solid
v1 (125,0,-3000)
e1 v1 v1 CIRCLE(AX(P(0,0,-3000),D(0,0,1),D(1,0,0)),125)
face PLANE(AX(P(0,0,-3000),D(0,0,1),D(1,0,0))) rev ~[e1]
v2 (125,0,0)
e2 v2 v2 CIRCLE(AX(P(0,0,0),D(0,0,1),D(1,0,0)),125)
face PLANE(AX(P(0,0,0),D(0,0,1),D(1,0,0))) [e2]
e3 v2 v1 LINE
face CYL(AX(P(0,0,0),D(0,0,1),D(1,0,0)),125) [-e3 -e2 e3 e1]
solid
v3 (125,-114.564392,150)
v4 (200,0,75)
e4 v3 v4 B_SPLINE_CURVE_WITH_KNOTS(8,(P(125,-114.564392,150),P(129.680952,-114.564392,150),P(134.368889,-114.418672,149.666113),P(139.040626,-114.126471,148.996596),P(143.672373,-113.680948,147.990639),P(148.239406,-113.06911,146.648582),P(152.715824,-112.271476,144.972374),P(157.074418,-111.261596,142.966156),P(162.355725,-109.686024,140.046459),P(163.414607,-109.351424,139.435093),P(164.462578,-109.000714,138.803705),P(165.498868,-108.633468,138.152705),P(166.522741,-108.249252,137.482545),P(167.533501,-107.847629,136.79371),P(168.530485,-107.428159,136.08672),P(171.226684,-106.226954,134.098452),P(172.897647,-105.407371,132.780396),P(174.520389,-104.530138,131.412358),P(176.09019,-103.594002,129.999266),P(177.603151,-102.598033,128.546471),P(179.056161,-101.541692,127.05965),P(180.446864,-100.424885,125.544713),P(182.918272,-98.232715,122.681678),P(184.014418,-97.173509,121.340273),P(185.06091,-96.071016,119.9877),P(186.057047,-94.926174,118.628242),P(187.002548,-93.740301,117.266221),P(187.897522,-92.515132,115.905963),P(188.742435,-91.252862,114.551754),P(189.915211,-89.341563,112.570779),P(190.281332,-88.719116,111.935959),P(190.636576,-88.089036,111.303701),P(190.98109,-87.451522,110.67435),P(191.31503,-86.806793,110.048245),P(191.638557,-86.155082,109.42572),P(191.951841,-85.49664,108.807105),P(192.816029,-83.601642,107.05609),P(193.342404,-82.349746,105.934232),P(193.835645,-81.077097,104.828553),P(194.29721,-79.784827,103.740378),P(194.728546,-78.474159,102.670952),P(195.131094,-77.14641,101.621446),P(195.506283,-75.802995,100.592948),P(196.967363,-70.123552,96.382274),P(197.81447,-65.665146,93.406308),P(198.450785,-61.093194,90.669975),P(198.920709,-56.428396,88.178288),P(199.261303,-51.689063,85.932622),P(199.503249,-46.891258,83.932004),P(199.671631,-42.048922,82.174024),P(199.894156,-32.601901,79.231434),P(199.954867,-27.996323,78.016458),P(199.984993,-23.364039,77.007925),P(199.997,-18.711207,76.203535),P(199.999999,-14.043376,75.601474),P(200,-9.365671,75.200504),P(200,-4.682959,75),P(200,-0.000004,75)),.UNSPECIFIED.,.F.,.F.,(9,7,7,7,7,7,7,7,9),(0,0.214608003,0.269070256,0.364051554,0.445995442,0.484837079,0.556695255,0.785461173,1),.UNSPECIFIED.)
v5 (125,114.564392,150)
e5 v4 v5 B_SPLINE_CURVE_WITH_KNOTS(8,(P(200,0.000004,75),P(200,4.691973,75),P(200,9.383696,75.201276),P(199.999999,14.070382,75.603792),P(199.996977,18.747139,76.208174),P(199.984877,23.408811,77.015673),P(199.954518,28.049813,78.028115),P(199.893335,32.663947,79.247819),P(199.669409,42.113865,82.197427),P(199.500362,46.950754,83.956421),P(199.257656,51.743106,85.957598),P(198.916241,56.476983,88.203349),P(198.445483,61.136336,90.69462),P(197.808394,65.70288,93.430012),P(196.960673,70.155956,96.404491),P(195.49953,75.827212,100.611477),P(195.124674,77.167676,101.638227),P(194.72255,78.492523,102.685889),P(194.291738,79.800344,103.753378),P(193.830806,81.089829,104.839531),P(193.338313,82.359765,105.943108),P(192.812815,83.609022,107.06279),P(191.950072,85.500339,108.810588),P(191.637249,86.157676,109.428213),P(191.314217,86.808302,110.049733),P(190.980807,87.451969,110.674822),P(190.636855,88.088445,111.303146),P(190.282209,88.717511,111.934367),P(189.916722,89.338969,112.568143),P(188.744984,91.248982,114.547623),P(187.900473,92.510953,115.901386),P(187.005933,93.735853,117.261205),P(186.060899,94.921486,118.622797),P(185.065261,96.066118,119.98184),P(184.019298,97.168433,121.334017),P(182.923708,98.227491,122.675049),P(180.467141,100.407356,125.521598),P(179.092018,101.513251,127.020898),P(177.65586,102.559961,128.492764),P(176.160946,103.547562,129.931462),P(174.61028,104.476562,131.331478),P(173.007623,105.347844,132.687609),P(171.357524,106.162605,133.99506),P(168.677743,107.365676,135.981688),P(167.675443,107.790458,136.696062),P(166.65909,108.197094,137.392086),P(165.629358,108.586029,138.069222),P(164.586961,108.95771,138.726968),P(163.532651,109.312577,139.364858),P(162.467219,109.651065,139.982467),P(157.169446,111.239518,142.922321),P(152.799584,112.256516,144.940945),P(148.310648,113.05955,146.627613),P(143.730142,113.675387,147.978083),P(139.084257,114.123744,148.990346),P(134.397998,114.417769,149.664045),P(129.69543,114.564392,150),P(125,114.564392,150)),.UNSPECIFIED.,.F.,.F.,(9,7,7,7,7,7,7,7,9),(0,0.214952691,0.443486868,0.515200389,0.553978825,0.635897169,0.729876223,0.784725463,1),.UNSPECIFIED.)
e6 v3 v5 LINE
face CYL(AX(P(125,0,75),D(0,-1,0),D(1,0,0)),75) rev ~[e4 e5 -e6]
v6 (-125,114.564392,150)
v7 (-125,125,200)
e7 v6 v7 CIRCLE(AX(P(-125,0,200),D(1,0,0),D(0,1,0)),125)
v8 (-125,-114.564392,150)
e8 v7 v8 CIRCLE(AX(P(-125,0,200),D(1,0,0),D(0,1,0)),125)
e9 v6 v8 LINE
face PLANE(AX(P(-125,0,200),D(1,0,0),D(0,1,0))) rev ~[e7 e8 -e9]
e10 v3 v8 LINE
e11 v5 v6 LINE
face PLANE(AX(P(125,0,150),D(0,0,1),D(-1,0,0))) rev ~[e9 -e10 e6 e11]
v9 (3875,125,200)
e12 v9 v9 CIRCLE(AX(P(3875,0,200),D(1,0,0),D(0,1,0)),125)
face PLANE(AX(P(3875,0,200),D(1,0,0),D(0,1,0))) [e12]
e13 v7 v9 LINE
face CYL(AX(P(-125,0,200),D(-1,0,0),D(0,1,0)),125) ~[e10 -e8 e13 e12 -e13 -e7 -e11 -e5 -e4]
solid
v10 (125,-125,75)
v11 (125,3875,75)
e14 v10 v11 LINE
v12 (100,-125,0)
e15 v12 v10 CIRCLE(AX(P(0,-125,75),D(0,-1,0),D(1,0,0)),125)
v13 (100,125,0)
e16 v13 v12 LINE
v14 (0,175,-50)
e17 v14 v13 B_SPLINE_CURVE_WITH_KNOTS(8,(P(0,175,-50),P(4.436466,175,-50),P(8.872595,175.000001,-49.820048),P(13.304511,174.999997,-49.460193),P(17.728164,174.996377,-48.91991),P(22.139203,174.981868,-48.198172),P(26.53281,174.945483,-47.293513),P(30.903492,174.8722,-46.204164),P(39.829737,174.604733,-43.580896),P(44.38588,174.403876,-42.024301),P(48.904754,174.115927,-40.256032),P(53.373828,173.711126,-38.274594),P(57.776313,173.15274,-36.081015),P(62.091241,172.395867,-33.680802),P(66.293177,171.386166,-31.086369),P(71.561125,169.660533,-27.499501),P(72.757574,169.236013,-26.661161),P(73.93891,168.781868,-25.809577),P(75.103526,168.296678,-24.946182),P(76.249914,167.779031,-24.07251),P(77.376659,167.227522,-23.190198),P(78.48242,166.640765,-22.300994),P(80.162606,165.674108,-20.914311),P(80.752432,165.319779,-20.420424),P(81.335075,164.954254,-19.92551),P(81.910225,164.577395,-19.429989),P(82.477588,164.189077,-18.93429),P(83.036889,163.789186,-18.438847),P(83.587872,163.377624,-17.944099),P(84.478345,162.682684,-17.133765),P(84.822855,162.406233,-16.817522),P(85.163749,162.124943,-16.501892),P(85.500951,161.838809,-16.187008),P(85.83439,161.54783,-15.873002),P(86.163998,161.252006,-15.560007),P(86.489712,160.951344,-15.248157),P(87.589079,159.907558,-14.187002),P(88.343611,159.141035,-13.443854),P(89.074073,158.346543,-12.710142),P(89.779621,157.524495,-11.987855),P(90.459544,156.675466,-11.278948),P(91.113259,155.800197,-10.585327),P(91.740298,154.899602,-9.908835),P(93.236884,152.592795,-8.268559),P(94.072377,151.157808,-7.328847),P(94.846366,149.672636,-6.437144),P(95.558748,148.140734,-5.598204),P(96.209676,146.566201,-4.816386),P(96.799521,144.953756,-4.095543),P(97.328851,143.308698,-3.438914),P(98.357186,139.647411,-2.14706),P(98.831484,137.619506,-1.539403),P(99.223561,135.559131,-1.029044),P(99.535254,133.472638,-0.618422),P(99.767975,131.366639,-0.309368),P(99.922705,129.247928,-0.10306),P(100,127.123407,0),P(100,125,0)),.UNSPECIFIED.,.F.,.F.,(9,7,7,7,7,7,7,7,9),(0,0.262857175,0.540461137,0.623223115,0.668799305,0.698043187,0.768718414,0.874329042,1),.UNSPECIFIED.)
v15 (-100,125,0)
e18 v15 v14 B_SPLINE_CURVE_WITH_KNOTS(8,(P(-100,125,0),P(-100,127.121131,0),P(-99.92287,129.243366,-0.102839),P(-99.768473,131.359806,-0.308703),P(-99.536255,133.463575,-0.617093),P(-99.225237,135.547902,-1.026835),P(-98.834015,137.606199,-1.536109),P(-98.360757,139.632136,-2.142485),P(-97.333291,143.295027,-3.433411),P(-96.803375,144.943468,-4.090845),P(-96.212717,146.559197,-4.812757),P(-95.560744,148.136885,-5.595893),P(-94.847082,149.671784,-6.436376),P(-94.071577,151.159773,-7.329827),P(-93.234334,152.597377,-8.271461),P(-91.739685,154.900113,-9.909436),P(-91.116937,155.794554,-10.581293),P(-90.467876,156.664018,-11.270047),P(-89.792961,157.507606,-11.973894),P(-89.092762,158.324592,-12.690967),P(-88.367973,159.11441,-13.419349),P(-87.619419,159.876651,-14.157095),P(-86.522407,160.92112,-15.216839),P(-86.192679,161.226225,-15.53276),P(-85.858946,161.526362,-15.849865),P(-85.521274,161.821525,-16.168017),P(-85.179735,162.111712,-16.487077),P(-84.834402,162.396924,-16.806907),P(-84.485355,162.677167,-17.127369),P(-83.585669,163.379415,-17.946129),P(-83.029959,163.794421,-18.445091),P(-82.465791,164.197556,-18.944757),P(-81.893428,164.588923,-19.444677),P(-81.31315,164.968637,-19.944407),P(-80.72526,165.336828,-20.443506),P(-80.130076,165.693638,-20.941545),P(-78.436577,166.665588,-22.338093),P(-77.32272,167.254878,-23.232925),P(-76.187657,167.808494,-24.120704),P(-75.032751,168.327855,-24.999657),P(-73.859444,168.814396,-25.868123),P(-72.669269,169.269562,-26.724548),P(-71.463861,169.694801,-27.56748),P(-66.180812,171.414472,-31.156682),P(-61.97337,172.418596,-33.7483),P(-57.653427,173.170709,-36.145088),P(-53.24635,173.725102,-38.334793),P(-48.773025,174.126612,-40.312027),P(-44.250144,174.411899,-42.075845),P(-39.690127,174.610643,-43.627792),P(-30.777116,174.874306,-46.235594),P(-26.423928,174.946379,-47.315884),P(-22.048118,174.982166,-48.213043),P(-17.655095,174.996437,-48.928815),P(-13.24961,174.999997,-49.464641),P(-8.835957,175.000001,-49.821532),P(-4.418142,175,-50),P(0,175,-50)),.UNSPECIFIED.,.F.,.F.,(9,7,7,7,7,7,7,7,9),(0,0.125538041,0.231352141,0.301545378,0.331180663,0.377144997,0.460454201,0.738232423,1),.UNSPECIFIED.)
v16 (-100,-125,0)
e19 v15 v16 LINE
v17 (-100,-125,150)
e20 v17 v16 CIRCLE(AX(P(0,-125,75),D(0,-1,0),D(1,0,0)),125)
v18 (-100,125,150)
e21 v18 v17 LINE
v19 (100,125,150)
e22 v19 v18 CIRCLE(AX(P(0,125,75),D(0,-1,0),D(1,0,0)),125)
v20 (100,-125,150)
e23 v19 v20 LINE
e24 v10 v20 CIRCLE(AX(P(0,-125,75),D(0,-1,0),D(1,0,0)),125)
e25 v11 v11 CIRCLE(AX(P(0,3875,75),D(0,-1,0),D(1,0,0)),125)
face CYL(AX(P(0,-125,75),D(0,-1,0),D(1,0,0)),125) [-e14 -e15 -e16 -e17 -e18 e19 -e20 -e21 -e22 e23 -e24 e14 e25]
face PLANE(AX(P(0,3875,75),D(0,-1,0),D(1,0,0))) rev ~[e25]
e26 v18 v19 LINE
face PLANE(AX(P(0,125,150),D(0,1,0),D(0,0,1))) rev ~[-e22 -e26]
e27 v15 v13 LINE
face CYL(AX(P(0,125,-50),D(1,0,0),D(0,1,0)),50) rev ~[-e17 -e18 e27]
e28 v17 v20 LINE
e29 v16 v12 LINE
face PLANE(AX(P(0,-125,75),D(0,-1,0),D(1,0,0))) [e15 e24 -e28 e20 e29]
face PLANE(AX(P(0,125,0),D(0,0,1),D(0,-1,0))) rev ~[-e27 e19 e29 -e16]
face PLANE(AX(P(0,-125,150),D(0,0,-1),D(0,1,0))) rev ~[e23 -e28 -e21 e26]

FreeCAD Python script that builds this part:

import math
import FreeCAD as App
import Part
import Sketcher

V = App.Vector

doc = App.newDocument("Part")
body = doc.addObject("PartDesign::Body", "Body")

# Sketch on XY plane
sketch1 = body.newObject("Sketcher::SketchObject", "Sketch")
sketch1.AttachmentSupport = (doc.getObject("XY_Plane"), [""])
sketch1.MapMode = "FlatFace"
sketch1.addGeometry(Part.Circle(V(0, 0, 0), V(0, 0, 1), 125), False)
sketch1.addConstraint([
    Sketcher.Constraint("Coincident", 0, 3, -1, 1),
    Sketcher.Constraint("Diameter", 0, 250.0),
])
pad1 = body.newObject("PartDesign::Pad", "Pad")
pad1.Profile = sketch1
pad1.Length = 3000
pad1.Reversed = True
body2 = doc.addObject("PartDesign::Body", "Body001")

# Sketch on XZ plane
sketch2 = body2.newObject("Sketcher::SketchObject", "Sketch001")
sketch2.AttachmentSupport = (doc.getObject("XZ_Plane001"), [""])
sketch2.MapMode = "FlatFace"
sketch2.AttachmentOffset = App.Placement(V(0, 0, 125), App.Rotation())
sketch2.addGeometry(Part.Circle(V(0, 75, 0), V(0, 0, 1), 125), False)
sketch2.addConstraint([
    Sketcher.Constraint("PointOnObject", 0, 3, -2),
    Sketcher.Constraint("Diameter", 0, 250.0),
    Sketcher.Constraint("DistanceY", -1, 1, 0, 3, 75.0),
])
pad2 = body2.newObject("PartDesign::Pad", "Pad001")
pad2.Profile = sketch2
pad2.Length = 4000
pad2.Reversed = True

# Sketch on YZ plane
sketch3 = body2.newObject("Sketcher::SketchObject", "Sketch002")
sketch3.AttachmentSupport = (doc.getObject("YZ_Plane001"), [""])
sketch3.MapMode = "FlatFace"
sketch3.addGeometry([
    Part.ArcOfCircle(Part.Circle(V(125, -50, 0), V(0, 0, 1), 50), math.radians(0), math.radians(90)),  # 0
    Part.LineSegment(V(125, 0, 0), V(-125, 0, 0)),  # 1
    Part.LineSegment(V(-125, 0, 0), V(-125, 150, 0)),  # 2
    Part.LineSegment(V(-125, 150, 0), V(125, 150, 0)),  # 3
    Part.LineSegment(V(125, 150, 0), V(125, 250, 0)),  # 4
    Part.LineSegment(V(125, 250, 0), V(-213, 250, 0)),  # 5
    Part.LineSegment(V(-213, 250, 0), V(-213, -100, 0)),  # 6
    Part.LineSegment(V(-213, -100, 0), V(217, -100, 0)),  # 7
    Part.LineSegment(V(217, -100, 0), V(217, -50, 0)),  # 8
    Part.LineSegment(V(217, -50, 0), V(175, -50, 0)),  # 9
], False)
sketch3.addConstraint([
    Sketcher.Constraint("Tangent", 0, 2, 1, 1),
    Sketcher.Constraint("Coincident", 1, 2, 2, 1),
    Sketcher.Constraint("Coincident", 2, 2, 3, 1),
    Sketcher.Constraint("Coincident", 3, 2, 4, 1),
    Sketcher.Constraint("Coincident", 4, 2, 5, 1),
    Sketcher.Constraint("Coincident", 5, 2, 6, 1),
    Sketcher.Constraint("Coincident", 6, 2, 7, 1),
    Sketcher.Constraint("Coincident", 7, 2, 8, 1),
    Sketcher.Constraint("Coincident", 8, 2, 9, 1),
    Sketcher.Constraint("Coincident", 9, 2, 0, 1),
    Sketcher.Constraint("Horizontal", 1),
    Sketcher.Constraint("Vertical", 2),
    Sketcher.Constraint("Horizontal", 3),
    Sketcher.Constraint("Vertical", 4),
    Sketcher.Constraint("Horizontal", 5),
    Sketcher.Constraint("Vertical", 6),
    Sketcher.Constraint("Horizontal", 7),
    Sketcher.Constraint("Vertical", 8),
    Sketcher.Constraint("Horizontal", 9),
    Sketcher.Constraint("Symmetric", 0, 2, 1, 2, -1, 1),
    Sketcher.Constraint("Horizontal", 0, 3, 8, 2),
    Sketcher.Constraint("Vertical", 0, 2, 3, 2),
    Sketcher.Constraint("Radius", 0, 50.0),
    Sketcher.Constraint("DistanceX", 1, 2, 1, 1, 250.0),
    Sketcher.Constraint("DistanceY", 2, 1, 2, 2, 150.0),
    Sketcher.Constraint("DistanceY", 4, 1, 4, 2, 100.0),
    Sketcher.Constraint("DistanceY", 6, 2, 6, 1, 350.0),
    Sketcher.Constraint("DistanceX", 5, 2, 5, 1, 337.511629),
    Sketcher.Constraint("DistanceX", 7, 1, 7, 2, 429.036275),
])
pocket1 = body2.newObject("PartDesign::Pocket", "Pocket")
pocket1.Profile = sketch3
pocket1.Length = 400
pocket1.Midplane = True
body3 = doc.addObject("PartDesign::Body", "Body002")

# Sketch on YZ plane
sketch4 = body3.newObject("Sketcher::SketchObject", "Sketch003")
sketch4.AttachmentSupport = (doc.getObject("YZ_Plane002"), [""])
sketch4.MapMode = "FlatFace"
sketch4.AttachmentOffset = App.Placement(V(0, 0, -125), App.Rotation())
sketch4.addGeometry(Part.Circle(V(0, 200, 0), V(0, 0, 1), 125), False)
sketch4.addConstraint([
    Sketcher.Constraint("PointOnObject", 0, 3, -2),
    Sketcher.Constraint("Diameter", 0, 250.0),
    Sketcher.Constraint("DistanceY", -1, 1, 0, 3, 200.0),
])
pad3 = body3.newObject("PartDesign::Pad", "Pad002")
pad3.Profile = sketch4
pad3.Length = 4000

# Sketch on XZ plane
sketch5 = body3.newObject("Sketcher::SketchObject", "Sketch004")
sketch5.AttachmentSupport = (doc.getObject("XZ_Plane002"), [""])
sketch5.MapMode = "FlatFace"
sketch5.addGeometry([
    Part.LineSegment(V(125, 150, 0), V(-125, 150, 0)),
    Part.LineSegment(V(-125, 150, 0), V(-125, 75, 0)),
    Part.LineSegment(V(-125, 75, 0), V(200, 75, 0)),
    Part.ArcOfCircle(Part.Circle(V(125, 75, 0), V(0, 0, 1), 75), math.radians(0), math.radians(90)),
], False)
sketch5.addConstraint([
    Sketcher.Constraint("Coincident", 0, 2, 1, 1),
    Sketcher.Constraint("Coincident", 1, 2, 2, 1),
    Sketcher.Constraint("Coincident", 2, 2, 3, 1),
    Sketcher.Constraint("Tangent", 3, 2, 0, 1),
    Sketcher.Constraint("Horizontal", 0),
    Sketcher.Constraint("Vertical", 1),
    Sketcher.Constraint("Horizontal", 2),
    Sketcher.Constraint("Horizontal", 3, 3, 1, 2),
    Sketcher.Constraint("Radius", 3, 75.0),
    Sketcher.Constraint("DistanceX", 0, 2, 0, 1, 250.0),
    Sketcher.Constraint("DistanceX", -1, 1, 3, 3, 125.0),
    Sketcher.Constraint("DistanceY", -1, 1, 3, 3, 75.0),
])
pocket2 = body3.newObject("PartDesign::Pocket", "Pocket001")
pocket2.Profile = sketch5
pocket2.Length = 400
pocket2.Midplane = True

doc.recompute()
